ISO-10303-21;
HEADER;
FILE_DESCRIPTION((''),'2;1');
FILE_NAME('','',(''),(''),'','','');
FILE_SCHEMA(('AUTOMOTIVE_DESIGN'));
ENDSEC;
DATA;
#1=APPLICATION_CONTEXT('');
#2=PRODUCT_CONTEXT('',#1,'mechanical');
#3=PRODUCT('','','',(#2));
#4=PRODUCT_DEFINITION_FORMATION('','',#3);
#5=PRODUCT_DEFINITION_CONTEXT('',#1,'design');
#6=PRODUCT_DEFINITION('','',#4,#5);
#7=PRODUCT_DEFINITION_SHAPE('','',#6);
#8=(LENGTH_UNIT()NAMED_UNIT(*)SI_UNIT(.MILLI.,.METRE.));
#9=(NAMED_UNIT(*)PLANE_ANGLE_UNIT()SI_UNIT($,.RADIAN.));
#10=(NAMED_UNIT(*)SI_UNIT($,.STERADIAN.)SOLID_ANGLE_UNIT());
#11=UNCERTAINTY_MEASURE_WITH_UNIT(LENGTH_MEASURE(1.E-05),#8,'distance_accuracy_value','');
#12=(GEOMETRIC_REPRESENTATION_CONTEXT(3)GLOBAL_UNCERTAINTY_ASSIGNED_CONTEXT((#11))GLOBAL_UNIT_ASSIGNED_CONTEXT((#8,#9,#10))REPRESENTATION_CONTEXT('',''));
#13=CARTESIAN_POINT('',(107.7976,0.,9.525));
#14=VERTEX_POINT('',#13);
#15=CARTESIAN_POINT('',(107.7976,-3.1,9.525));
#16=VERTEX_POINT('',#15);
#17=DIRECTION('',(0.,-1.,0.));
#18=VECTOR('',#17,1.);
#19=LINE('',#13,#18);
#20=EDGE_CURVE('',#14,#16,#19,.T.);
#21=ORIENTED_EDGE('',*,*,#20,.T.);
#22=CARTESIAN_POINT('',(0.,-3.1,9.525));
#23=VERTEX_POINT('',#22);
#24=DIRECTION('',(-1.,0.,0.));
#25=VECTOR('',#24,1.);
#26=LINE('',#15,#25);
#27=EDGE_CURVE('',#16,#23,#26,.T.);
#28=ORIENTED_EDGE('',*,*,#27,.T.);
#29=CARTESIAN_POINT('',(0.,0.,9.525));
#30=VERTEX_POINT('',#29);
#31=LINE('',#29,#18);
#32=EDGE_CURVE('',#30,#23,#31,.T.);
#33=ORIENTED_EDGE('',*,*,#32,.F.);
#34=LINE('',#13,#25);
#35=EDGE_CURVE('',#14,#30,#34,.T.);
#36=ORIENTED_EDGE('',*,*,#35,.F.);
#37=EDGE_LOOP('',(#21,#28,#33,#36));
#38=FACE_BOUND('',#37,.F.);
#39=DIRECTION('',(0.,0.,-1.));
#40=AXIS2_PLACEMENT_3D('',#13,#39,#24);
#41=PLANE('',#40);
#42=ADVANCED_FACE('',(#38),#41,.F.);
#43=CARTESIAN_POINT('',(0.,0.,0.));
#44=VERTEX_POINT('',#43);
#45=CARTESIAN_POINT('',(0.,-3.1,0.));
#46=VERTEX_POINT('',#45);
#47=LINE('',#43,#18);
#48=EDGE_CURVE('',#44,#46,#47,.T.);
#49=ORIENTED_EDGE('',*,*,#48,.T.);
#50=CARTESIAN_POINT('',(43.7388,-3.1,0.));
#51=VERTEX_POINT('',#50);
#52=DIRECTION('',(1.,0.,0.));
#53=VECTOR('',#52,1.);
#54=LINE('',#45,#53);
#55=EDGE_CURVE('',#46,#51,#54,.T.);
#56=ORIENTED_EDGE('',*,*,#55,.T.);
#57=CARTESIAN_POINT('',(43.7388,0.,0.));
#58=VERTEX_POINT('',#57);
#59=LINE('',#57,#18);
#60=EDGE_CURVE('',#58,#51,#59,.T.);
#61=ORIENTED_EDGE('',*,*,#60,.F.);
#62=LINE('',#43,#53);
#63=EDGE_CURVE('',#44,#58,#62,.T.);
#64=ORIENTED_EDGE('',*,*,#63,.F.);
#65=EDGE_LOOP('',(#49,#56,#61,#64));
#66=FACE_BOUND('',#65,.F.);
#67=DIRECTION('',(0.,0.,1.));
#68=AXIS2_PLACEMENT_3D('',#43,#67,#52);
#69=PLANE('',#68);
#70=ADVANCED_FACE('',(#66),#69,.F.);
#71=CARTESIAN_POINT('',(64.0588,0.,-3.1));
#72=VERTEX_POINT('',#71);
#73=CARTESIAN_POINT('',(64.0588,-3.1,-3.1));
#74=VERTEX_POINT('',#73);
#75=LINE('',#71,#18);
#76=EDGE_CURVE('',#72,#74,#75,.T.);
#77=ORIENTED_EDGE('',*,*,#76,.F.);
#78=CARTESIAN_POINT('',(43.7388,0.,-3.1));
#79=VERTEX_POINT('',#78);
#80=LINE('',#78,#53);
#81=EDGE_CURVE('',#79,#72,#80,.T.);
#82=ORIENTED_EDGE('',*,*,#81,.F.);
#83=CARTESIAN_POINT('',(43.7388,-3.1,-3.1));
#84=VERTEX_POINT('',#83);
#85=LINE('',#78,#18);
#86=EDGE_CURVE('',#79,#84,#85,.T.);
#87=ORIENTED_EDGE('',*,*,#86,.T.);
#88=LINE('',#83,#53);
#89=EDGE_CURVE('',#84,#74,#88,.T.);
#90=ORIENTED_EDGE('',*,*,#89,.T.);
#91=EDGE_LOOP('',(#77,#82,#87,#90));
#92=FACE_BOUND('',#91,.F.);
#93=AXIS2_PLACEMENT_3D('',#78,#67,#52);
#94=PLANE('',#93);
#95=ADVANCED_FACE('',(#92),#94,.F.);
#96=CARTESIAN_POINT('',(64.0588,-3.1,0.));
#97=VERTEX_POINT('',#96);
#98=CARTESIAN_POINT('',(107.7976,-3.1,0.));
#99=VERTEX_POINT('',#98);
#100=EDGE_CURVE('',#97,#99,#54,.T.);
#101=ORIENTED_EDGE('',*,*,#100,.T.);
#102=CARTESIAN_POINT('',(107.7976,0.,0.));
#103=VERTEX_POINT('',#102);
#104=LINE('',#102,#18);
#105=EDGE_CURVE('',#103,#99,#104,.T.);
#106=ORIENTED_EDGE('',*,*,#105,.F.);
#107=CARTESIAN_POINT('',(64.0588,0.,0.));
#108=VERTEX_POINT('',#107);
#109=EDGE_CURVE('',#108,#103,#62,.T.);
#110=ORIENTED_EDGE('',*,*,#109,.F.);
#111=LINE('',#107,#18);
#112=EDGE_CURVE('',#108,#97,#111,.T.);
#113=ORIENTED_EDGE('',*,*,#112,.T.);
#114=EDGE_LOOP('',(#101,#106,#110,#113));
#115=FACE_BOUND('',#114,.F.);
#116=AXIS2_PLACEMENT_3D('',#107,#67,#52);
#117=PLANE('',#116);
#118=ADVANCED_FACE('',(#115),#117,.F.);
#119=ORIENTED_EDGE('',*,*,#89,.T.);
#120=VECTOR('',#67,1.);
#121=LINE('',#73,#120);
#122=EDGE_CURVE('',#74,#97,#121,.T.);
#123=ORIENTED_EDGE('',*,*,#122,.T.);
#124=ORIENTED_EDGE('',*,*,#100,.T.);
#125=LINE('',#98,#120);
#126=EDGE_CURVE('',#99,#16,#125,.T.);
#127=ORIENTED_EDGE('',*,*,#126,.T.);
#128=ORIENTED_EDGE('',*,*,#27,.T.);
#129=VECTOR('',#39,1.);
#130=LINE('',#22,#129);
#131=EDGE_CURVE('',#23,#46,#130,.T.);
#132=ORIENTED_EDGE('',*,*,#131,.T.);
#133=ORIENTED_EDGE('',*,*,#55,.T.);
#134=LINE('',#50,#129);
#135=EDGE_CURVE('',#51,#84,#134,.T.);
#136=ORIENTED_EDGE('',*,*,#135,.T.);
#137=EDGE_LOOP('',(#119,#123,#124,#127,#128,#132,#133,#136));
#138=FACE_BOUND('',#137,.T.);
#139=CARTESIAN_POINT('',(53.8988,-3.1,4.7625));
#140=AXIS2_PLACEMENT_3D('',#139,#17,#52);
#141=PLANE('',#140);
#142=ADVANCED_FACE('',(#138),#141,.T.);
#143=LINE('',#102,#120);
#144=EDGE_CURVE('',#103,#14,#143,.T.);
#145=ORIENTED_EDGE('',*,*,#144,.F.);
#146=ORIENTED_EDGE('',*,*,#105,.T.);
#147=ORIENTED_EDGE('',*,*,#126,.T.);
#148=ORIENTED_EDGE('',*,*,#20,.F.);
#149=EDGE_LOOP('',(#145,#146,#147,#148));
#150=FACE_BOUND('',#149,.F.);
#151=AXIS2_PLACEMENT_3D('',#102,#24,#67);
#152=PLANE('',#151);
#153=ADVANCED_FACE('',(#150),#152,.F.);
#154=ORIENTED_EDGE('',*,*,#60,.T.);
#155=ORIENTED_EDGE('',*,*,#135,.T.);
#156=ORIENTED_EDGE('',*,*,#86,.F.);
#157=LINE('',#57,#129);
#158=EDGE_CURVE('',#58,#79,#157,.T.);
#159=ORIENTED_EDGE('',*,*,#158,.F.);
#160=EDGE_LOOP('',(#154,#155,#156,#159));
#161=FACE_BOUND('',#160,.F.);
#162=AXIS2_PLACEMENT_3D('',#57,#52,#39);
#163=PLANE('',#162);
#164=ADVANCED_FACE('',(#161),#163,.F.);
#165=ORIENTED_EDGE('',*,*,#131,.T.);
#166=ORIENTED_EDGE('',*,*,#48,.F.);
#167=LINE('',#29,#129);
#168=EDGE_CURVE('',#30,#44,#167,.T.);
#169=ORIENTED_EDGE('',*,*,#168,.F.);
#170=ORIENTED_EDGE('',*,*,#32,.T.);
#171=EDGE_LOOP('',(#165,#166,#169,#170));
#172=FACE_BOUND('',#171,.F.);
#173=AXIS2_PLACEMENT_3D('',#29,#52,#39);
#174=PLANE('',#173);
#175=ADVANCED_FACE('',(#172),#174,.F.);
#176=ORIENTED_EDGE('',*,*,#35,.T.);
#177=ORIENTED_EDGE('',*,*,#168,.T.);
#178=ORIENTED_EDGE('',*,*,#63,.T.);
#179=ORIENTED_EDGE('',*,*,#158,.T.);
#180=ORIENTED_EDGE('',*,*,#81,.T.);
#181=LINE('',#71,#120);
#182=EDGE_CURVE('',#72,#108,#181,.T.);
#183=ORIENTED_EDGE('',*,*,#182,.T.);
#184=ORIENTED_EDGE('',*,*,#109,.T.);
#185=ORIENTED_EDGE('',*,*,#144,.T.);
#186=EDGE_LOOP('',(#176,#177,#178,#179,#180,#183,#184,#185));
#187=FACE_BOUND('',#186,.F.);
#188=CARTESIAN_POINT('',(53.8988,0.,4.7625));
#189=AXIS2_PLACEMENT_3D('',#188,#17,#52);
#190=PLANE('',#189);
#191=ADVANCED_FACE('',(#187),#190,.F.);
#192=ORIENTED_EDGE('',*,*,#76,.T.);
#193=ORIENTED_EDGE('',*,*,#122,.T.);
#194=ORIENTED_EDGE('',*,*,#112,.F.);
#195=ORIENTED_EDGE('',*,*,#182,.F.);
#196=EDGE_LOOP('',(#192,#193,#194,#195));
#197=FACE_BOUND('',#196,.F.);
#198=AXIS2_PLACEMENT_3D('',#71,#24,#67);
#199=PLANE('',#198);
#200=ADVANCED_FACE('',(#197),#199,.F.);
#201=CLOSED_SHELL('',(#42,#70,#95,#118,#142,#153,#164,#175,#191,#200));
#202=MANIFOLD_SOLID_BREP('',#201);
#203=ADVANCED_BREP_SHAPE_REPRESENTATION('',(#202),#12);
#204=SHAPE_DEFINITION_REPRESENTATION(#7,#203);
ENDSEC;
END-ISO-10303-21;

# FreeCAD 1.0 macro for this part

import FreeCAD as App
import Part
import Sketcher

V = App.Vector
Q = App.Units.Quantity

doc = App.newDocument("Part")
body = doc.addObject("PartDesign::Body", "Body")

# Sketch on XZ plane
sketch1 = doc.addObject("Sketcher::SketchObject", "Sketch")
body.addObject(sketch1)
sketch1.AttachmentSupport = (doc.XZ_Plane, [""])
sketch1.MapMode = "FlatFace"
sketch1.addGeometry([
    Part.LineSegment(V(0, 9.5, 0), V(0, 0, 0)),  # 0
    Part.LineSegment(V(0, 0, 0), V(43.7, 0, 0)),  # 1
    Part.LineSegment(V(43.7, 0, 0), V(43.7, -3.1, 0)),  # 2
    Part.LineSegment(V(43.7, -3.1, 0), V(64.1, -3.1, 0)),  # 3
    Part.LineSegment(V(64.1, -3.1, 0), V(64.1, 0, 0)),  # 4
    Part.LineSegment(V(64.1, 0, 0), V(107.8, 0, 0)),  # 5
    Part.LineSegment(V(107.8, 0, 0), V(107.8, 9.5, 0)),  # 6
    Part.LineSegment(V(107.8, 9.5, 0), V(0, 9.5, 0)),  # 7
], False)
sketch1.addConstraint([
    Sketcher.Constraint("Coincident", 0, 2, 1, 1),
    Sketcher.Constraint("Coincident", 1, 2, 2, 1),
    Sketcher.Constraint("Coincident", 2, 2, 3, 1),
    Sketcher.Constraint("Coincident", 3, 2, 4, 1),
    Sketcher.Constraint("Coincident", 4, 2, 5, 1),
    Sketcher.Constraint("Coincident", 5, 2, 6, 1),
    Sketcher.Constraint("Coincident", 6, 2, 7, 1),
    Sketcher.Constraint("Coincident", 7, 2, 0, 1),
    Sketcher.Constraint("Vertical", 0),
    Sketcher.Constraint("Horizontal", 1),
    Sketcher.Constraint("Vertical", 2),
    Sketcher.Constraint("Horizontal", 3),
    Sketcher.Constraint("Vertical", 4),
    Sketcher.Constraint("Horizontal", 5),
    Sketcher.Constraint("Vertical", 6),
    Sketcher.Constraint("Horizontal", 7),
    Sketcher.Constraint("Coincident", 0, 2, -1, 1),
    Sketcher.Constraint("PointOnObject", 4, 2, -1),
    Sketcher.Constraint("Equal", 1, 5),
    Sketcher.Constraint("DistanceX", 3, 1, 3, 2, Q("0.8 in")),
    Sketcher.Constraint("DistanceX", 1, 1, 1, 2, Q("1.722 in")),
    Sketcher.Constraint("DistanceY", 0, 2, 0, 1, Q("0.375 in")),
    Sketcher.Constraint("DistanceY", 2, 2, 2, 1, Q("3.1 mm")),
])
pad1 = doc.addObject("PartDesign::Pad", "Pad")
body.addObject(pad1)
pad1.Profile = sketch1
pad1.Length = 3.1

doc.recompute()
